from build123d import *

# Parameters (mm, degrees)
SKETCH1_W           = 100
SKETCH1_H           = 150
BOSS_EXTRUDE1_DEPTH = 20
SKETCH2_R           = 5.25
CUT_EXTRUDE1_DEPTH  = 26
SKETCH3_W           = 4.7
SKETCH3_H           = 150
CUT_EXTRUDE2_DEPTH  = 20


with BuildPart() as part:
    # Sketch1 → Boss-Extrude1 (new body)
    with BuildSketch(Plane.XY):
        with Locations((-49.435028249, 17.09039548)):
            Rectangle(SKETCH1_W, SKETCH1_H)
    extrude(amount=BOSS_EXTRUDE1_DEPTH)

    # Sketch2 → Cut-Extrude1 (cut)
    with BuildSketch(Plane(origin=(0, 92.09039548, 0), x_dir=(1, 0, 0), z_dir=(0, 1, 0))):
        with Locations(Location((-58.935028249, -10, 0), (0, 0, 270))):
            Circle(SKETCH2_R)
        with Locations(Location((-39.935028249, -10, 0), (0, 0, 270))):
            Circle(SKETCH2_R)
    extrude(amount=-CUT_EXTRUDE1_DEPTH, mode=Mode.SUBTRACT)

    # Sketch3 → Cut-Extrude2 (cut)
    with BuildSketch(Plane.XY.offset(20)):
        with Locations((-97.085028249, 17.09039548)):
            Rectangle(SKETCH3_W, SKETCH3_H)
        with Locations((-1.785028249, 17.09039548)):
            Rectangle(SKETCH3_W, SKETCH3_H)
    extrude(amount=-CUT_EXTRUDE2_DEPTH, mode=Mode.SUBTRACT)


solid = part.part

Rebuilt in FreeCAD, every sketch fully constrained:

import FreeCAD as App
import Part
import Sketcher
Q = App.Units.Quantity

doc = App.newDocument("Part")
body = doc.addObject("PartDesign::Body", "Body")

sketch1 = body.newObject("Sketcher::SketchObject", "Sketch")
sketch1.AttachmentSupport = (doc.getObject("XY_Plane"), [""])
sketch1.MapMode = "FlatFace"
sketch1.addGeometry(Part.LineSegment(App.Vector(-99, 92, 0), App.Vector(-99, -58, 0)), False)
sketch1.addGeometry(Part.LineSegment(App.Vector(-99, -58, 0), App.Vector(1, -58, 0)), False)
sketch1.addGeometry(Part.LineSegment(App.Vector(1, -58, 0), App.Vector(1, 92, 0)), False)
sketch1.addGeometry(Part.LineSegment(App.Vector(1, 92, 0), App.Vector(-99, 92, 0)), False)
sketch1.addConstraint(Sketcher.Constraint("Coincident", 0, 2, 1, 1))
sketch1.addConstraint(Sketcher.Constraint("Coincident", 1, 2, 2, 1))
sketch1.addConstraint(Sketcher.Constraint("Coincident", 2, 2, 3, 1))
sketch1.addConstraint(Sketcher.Constraint("Coincident", 3, 2, 0, 1))
sketch1.addConstraint(Sketcher.Constraint("Vertical", 0))
sketch1.addConstraint(Sketcher.Constraint("Horizontal", 1))
sketch1.addConstraint(Sketcher.Constraint("Vertical", 2))
sketch1.addConstraint(Sketcher.Constraint("Horizontal", 3))
sketch1.addConstraint(Sketcher.Constraint("DistanceX", 1, 1, 1, 2, Q("100 mm")))
sketch1.addConstraint(Sketcher.Constraint("DistanceY", 0, 2, 0, 1, Q("150 mm")))
sketch1.addConstraint(Sketcher.Constraint("DistanceX", 0, 2, -1, 1, Q("99.435028 mm")))
sketch1.addConstraint(Sketcher.Constraint("DistanceY", 0, 2, -1, 1, Q("57.909605 mm")))
pad1 = body.newObject("PartDesign::Pad", "Pad")
pad1.Profile = sketch1
pad1.Length = 20

sketch2 = body.newObject("Sketcher::SketchObject", "Sketch001")
sketch2.AttachmentSupport = (doc.getObject("XZ_Plane"), [""])
sketch2.MapMode = "FlatFace"
sketch2.AttachmentOffset = App.Placement(App.Vector(0, 0, -92.090395), App.Rotation())
sketch2.addGeometry(Part.Circle(App.Vector(-59, 10, 0), App.Vector(0, 0, 1), 5), False)
sketch2.addGeometry(Part.Circle(App.Vector(-40, 10, 0), App.Vector(0, 0, 1), 5), False)
sketch2.addConstraint(Sketcher.Constraint("Equal", 0, 1))
sketch2.addConstraint(Sketcher.Constraint("Horizontal", 0, 3, 1, 3))
sketch2.addConstraint(Sketcher.Constraint("Diameter", 0, Q("10.5 mm")))
sketch2.addConstraint(Sketcher.Constraint("DistanceY", -1, 1, 0, 3, Q("10 mm")))
sketch2.addConstraint(Sketcher.Constraint("DistanceX", 0, 3, 1, 3, Q("19 mm")))
sketch2.addConstraint(Sketcher.Constraint("DistanceX", 0, 3, -1, 1, Q("58.935028 mm")))
pocket1 = body.newObject("PartDesign::Pocket", "Pocket")
pocket1.Profile = sketch2
pocket1.Length = 26
pocket1.Reversed = True

sketch3 = body.newObject("Sketcher::SketchObject", "Sketch002")
sketch3.AttachmentSupport = (doc.getObject("XY_Plane"), [""])
sketch3.MapMode = "FlatFace"
sketch3.AttachmentOffset = App.Placement(App.Vector(0, 0, 20), App.Rotation())
sketch3.addGeometry(Part.LineSegment(App.Vector(-99.4, 92.1, 0), App.Vector(-99.4, -57.9, 0)), False)
sketch3.addGeometry(Part.LineSegment(App.Vector(-99.4, -57.9, 0), App.Vector(-94.7, -57.9, 0)), False)
sketch3.addGeometry(Part.LineSegment(App.Vector(-94.7, -57.9, 0), App.Vector(-94.7, 92.1, 0)), False)
sketch3.addGeometry(Part.LineSegment(App.Vector(-94.7, 92.1, 0), App.Vector(-99.4, 92.1, 0)), False)
sketch3.addGeometry(Part.LineSegment(App.Vector(-4.1, 92.1, 0), App.Vector(-4.1, -57.9, 0)), False)
sketch3.addGeometry(Part.LineSegment(App.Vector(-4.1, -57.9, 0), App.Vector(0.6, -57.9, 0)), False)
sketch3.addGeometry(Part.LineSegment(App.Vector(0.6, -57.9, 0), App.Vector(0.6, 92.1, 0)), False)
sketch3.addGeometry(Part.LineSegment(App.Vector(0.6, 92.1, 0), App.Vector(-4.1, 92.1, 0)), False)
sketch3.addConstraint(Sketcher.Constraint("Coincident", 0, 2, 1, 1))
sketch3.addConstraint(Sketcher.Constraint("Coincident", 1, 2, 2, 1))
sketch3.addConstraint(Sketcher.Constraint("Coincident", 2, 2, 3, 1))
sketch3.addConstraint(Sketcher.Constraint("Coincident", 3, 2, 0, 1))
sketch3.addConstraint(Sketcher.Constraint("Coincident", 4, 2, 5, 1))
sketch3.addConstraint(Sketcher.Constraint("Coincident", 5, 2, 6, 1))
sketch3.addConstraint(Sketcher.Constraint("Coincident", 6, 2, 7, 1))
sketch3.addConstraint(Sketcher.Constraint("Coincident", 7, 2, 4, 1))
sketch3.addConstraint(Sketcher.Constraint("Vertical", 0))
sketch3.addConstraint(Sketcher.Constraint("Horizontal", 1))
sketch3.addConstraint(Sketcher.Constraint("Vertical", 2))
sketch3.addConstraint(Sketcher.Constraint("Horizontal", 3))
sketch3.addConstraint(Sketcher.Constraint("Vertical", 4))
sketch3.addConstraint(Sketcher.Constraint("Horizontal", 5))
sketch3.addConstraint(Sketcher.Constraint("Vertical", 6))
sketch3.addConstraint(Sketcher.Constraint("Horizontal", 7))
sketch3.addConstraint(Sketcher.Constraint("Horizontal", 1, 2, 4, 2))
sketch3.addConstraint(Sketcher.Constraint("Horizontal", 3, 2, 6, 2))
sketch3.addConstraint(Sketcher.Constraint("Equal", 3, 5))
sketch3.addConstraint(Sketcher.Constraint("DistanceY", 0, 2, 0, 1, Q("150 mm")))
sketch3.addConstraint(Sketcher.Constraint("DistanceX", 1, 1, 1, 2, Q("4.7 mm")))
sketch3.addConstraint(Sketcher.Constraint("DistanceX", 0, 2, 5, 2, Q("100 mm")))
sketch3.addConstraint(Sketcher.Constraint("DistanceX", 0, 2, -1, 1, Q("99.435028 mm")))
sketch3.addConstraint(Sketcher.Constraint("DistanceY", 0, 2, -1, 1, Q("57.909605 mm")))
pocket2 = body.newObject("PartDesign::Pocket", "Pocket001")
pocket2.Profile = sketch3
pocket2.Length = 20

doc.recompute()
